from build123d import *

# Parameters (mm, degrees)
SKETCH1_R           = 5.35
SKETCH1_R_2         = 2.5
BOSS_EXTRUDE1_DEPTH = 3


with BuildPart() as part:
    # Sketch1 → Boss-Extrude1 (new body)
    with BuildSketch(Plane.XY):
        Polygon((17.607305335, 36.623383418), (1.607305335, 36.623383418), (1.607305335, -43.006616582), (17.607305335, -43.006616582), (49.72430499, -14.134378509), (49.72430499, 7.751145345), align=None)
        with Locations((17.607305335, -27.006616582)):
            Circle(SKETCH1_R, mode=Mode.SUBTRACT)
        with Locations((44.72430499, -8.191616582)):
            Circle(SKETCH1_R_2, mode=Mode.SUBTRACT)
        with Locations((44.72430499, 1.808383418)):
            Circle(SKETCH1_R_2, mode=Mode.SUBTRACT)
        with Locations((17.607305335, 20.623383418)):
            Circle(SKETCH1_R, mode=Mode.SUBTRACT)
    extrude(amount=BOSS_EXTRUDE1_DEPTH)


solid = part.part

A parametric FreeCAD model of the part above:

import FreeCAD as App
import Part
import Sketcher

V = App.Vector
Q = App.Units.Quantity


def add_polygon(sketch, points):
    """Adds a closed chain of lines whose ends are joined by coincident constraints."""
    first, n = sketch.GeometryCount, len(points)
    for a, b in zip(points, points[1:] + points[:1]):
        sketch.addGeometry(Part.LineSegment(App.Vector(*a, 0), App.Vector(*b, 0)), False)
    for i in range(n):
        sketch.addConstraint(Sketcher.Constraint("Coincident", first + i, 2, first + (i + 1) % n, 1))

doc = App.newDocument("Part")
body = doc.addObject("PartDesign::Body", "Body")

sketch1 = body.newObject("Sketcher::SketchObject", "Sketch")
sketch1.AttachmentSupport = (doc.getObject("XY_Plane"), [""])
sketch1.MapMode = "FlatFace"
add_polygon(sketch1, [(17.6, 36.6), (1.6, 36.6), (1.6, -43), (17.6, -43), (49.7, -14.1), (49.7, 7.8)])
sketch1.addGeometry(Part.Circle(V(17.6, -27, 0), V(0, 0, 1), 5.3), False)
sketch1.addGeometry(Part.Circle(V(44.7, -8.2, 0), V(0, 0, 1), 2.5), False)
sketch1.addGeometry(Part.Circle(V(17.6, 20.6, 0), V(0, 0, 1), 5.3), False)
sketch1.addGeometry(Part.Circle(V(44.7, 1.8, 0), V(0, 0, 1), 2.5), False)
sketch1.addConstraint([
    Sketcher.Constraint("Horizontal", 0),
    Sketcher.Constraint("Vertical", 1),
    Sketcher.Constraint("Horizontal", 2),
    Sketcher.Constraint("Vertical", 4),
    Sketcher.Constraint("Equal", 6, 8),
    Sketcher.Constraint("Equal", 7, 9),
    Sketcher.Constraint("Vertical", 6, 3, 8, 3),
    Sketcher.Constraint("Vertical", 7, 3, 9, 3),
    Sketcher.Constraint("Vertical", 8, 3, 2, 2),
    Sketcher.Constraint("Vertical", 2, 2, 5, 2),
    Sketcher.Constraint("Equal", 3, 5),
    Sketcher.Constraint("Diameter", 7, Q("5 mm")),
    Sketcher.Constraint("Diameter", 6, Q("10.7 mm")),
    Sketcher.Constraint("DistanceX", 0, 2, 0, 1, Q("16 mm")),
    Sketcher.Constraint("DistanceY", 7, 3, 9, 3, Q("10 mm")),
    Sketcher.Constraint("DistanceY", 8, 3, 0, 2, Q("16 mm")),
    Sketcher.Constraint("DistanceY", 1, 2, 6, 3, Q("16 mm")),
    Sketcher.Constraint("DistanceX", 7, 3, 3, 2, Q("5 mm")),
    Sketcher.Constraint("DistanceY", 1, 2, 1, 1, Q("79.63 mm")),
    Sketcher.Constraint("DistanceX", 6, 3, 7, 3, Q("27.117 mm")),
    Sketcher.Constraint("DistanceY", 6, 3, 7, 3, Q("18.815 mm")),
    Sketcher.Constraint("DistanceY", 4, 1, 4, 2, Q("21.885524 mm")),
    Sketcher.Constraint("DistanceY", 3, 2, -1, 1, Q("14.134379 mm")),
    Sketcher.Constraint("DistanceX", -1, 1, 6, 3, Q("17.607305 mm")),
])
pad1 = body.newObject("PartDesign::Pad", "Pad")
pad1.Profile = sketch1
pad1.Length = 3

doc.recompute()
